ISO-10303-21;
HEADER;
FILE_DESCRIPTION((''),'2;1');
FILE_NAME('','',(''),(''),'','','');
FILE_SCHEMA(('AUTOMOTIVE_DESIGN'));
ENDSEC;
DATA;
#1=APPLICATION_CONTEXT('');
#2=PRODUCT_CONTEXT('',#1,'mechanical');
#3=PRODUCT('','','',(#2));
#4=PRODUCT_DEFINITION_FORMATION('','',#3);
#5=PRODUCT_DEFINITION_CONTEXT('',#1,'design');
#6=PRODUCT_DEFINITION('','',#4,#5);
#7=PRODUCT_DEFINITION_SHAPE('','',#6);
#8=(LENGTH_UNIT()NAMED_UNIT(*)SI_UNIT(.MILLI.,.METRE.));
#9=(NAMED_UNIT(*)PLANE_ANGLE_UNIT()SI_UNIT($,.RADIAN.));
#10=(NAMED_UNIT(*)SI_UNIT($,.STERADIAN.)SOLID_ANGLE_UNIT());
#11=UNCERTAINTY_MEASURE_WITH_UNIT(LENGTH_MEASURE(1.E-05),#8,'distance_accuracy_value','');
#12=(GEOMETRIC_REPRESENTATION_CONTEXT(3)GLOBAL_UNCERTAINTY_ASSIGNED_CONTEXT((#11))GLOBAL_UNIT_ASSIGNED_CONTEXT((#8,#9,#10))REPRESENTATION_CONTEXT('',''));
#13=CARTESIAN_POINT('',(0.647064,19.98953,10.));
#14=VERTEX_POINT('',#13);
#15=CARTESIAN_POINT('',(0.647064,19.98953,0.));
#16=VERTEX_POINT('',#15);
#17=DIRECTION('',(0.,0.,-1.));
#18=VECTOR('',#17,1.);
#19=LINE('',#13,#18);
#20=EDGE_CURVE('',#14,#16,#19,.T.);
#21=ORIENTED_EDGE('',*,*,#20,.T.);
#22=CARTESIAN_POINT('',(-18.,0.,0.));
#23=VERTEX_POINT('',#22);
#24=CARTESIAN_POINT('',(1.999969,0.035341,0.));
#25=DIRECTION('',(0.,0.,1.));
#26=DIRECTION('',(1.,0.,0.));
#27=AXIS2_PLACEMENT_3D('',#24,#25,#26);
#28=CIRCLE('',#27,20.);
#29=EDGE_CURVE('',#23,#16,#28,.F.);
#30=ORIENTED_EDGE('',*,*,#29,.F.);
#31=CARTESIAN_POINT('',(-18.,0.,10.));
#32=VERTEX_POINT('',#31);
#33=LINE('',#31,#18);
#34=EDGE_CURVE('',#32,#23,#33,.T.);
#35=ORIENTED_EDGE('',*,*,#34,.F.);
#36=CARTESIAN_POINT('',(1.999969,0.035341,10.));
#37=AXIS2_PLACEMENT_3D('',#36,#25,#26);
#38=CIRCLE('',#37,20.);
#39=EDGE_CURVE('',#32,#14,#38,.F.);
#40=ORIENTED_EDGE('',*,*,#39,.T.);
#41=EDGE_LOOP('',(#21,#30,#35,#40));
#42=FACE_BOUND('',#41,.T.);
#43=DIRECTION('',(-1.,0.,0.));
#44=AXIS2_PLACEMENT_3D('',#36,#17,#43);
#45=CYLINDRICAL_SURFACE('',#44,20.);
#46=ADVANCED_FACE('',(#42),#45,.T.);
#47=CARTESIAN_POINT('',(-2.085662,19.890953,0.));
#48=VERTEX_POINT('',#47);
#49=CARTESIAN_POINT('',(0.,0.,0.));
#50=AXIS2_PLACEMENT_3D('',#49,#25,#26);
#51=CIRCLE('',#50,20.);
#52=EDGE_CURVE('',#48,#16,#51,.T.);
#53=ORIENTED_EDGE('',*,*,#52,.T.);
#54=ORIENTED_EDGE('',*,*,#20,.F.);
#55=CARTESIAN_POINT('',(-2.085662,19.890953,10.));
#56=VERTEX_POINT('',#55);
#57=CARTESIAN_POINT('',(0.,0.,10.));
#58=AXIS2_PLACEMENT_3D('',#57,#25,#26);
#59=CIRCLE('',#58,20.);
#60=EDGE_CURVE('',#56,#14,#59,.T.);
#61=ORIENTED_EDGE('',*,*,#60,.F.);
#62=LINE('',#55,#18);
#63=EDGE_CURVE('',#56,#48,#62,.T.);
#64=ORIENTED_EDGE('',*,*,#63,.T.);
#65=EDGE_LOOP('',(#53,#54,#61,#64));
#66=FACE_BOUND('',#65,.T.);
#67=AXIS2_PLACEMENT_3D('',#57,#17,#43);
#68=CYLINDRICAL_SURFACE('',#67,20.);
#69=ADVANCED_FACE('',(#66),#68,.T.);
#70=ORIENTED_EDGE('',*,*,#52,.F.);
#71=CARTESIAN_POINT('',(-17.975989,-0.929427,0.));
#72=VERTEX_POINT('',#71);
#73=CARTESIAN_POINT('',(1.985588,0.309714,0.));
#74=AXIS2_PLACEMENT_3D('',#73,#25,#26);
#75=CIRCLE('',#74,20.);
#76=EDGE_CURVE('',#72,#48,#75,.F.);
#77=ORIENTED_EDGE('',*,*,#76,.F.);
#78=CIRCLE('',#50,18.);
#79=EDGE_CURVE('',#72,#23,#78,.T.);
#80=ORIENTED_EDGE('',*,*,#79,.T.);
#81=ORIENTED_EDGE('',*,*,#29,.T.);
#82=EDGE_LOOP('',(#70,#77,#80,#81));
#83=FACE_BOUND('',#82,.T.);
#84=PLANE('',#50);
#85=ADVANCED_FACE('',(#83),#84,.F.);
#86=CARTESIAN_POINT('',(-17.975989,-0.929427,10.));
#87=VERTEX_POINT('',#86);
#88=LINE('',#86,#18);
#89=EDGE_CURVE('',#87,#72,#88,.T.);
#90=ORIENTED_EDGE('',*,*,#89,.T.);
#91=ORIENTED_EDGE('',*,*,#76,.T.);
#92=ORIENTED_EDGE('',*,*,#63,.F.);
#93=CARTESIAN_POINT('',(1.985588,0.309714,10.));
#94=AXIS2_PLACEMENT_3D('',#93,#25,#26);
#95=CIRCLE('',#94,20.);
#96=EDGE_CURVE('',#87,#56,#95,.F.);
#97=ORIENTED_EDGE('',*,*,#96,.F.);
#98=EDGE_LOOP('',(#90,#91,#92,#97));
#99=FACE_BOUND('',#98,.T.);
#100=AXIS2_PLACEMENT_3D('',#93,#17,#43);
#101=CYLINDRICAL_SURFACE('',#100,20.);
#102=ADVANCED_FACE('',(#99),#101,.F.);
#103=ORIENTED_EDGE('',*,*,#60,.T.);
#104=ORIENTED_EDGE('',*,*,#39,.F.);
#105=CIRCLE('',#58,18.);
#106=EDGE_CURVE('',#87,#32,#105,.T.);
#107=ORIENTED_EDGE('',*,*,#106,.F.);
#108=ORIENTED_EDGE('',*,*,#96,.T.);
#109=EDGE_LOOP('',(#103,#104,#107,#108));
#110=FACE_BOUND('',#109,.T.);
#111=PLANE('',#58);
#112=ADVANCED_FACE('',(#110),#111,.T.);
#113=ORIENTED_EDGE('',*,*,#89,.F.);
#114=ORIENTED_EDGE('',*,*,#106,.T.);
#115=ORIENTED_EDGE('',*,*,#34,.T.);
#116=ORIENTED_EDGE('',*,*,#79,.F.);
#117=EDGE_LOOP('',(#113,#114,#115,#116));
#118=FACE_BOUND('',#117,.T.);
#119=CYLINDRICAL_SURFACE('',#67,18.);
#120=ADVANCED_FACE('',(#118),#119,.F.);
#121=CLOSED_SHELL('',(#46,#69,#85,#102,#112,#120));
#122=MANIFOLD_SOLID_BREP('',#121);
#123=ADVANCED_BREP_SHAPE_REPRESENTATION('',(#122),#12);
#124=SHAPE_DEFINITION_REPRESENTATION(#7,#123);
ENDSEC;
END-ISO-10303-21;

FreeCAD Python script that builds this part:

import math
import FreeCAD as App
import Part
import Sketcher
Q = App.Units.Quantity

doc = App.newDocument("Part")
body = doc.addObject("PartDesign::Body", "Body")

# Sketch on XY plane
sketch1 = body.newObject("Sketcher::SketchObject", "Sketch")
sketch1.AttachmentSupport = (doc.getObject("XY_Plane"), [""])
sketch1.MapMode = "FlatFace"
sketch1.addGeometry(Part.ArcOfCircle(Part.Circle(App.Vector(0, 0, 0), App.Vector(0, 0, 1), 20), math.radians(96), math.radians(448)), False)
sketch1.addGeometry(Part.ArcOfCircle(Part.Circle(App.Vector(2, 0, 0), App.Vector(0, 0, 1), 20), math.radians(94), math.radians(180)), False)
sketch1.addGeometry(Part.ArcOfCircle(Part.Circle(App.Vector(0, 0, 0), App.Vector(0, 0, 1), 18), math.radians(-177), math.radians(180)), False)
sketch1.addGeometry(Part.ArcOfCircle(Part.Circle(App.Vector(2, 0.3, 0), App.Vector(0, 0, 1), 20), math.radians(102), math.radians(184)), False)
sketch1.addConstraint(Sketcher.Constraint("Coincident", 0, 2, 1, 1))
sketch1.addConstraint(Sketcher.Constraint("Coincident", 1, 2, 2, 2))
sketch1.addConstraint(Sketcher.Constraint("Coincident", 2, 1, 3, 2))
sketch1.addConstraint(Sketcher.Constraint("Coincident", 3, 1, 0, 1))
sketch1.addConstraint(Sketcher.Constraint("Coincident", 0, 3, -1, 1))
sketch1.addConstraint(Sketcher.Constraint("Coincident", 2, 3, -1, 1))
sketch1.addConstraint(Sketcher.Constraint("Equal", 0, 1))
sketch1.addConstraint(Sketcher.Constraint("Equal", 1, 3))
sketch1.addConstraint(Sketcher.Constraint("PointOnObject", 1, 2, -1))
sketch1.addConstraint(Sketcher.Constraint("Radius", 0, Q("20 mm")))
sketch1.addConstraint(Sketcher.Constraint("Radius", 2, Q("18 mm")))
sketch1.addConstraint(Sketcher.Constraint("DistanceY", -1, 1, 1, 3, Q("0.035341 mm")))
sketch1.addConstraint(Sketcher.Constraint("DistanceX", 2, 1, -1, 1, Q("17.975989 mm")))
sketch1.addConstraint(Sketcher.Constraint("DistanceX", 3, 3, 1, 3, Q("0.014381 mm")))
pad1 = body.newObject("PartDesign::Pad", "Pad")
pad1.Profile = sketch1
pad1.Length = 10

doc.recompute()
